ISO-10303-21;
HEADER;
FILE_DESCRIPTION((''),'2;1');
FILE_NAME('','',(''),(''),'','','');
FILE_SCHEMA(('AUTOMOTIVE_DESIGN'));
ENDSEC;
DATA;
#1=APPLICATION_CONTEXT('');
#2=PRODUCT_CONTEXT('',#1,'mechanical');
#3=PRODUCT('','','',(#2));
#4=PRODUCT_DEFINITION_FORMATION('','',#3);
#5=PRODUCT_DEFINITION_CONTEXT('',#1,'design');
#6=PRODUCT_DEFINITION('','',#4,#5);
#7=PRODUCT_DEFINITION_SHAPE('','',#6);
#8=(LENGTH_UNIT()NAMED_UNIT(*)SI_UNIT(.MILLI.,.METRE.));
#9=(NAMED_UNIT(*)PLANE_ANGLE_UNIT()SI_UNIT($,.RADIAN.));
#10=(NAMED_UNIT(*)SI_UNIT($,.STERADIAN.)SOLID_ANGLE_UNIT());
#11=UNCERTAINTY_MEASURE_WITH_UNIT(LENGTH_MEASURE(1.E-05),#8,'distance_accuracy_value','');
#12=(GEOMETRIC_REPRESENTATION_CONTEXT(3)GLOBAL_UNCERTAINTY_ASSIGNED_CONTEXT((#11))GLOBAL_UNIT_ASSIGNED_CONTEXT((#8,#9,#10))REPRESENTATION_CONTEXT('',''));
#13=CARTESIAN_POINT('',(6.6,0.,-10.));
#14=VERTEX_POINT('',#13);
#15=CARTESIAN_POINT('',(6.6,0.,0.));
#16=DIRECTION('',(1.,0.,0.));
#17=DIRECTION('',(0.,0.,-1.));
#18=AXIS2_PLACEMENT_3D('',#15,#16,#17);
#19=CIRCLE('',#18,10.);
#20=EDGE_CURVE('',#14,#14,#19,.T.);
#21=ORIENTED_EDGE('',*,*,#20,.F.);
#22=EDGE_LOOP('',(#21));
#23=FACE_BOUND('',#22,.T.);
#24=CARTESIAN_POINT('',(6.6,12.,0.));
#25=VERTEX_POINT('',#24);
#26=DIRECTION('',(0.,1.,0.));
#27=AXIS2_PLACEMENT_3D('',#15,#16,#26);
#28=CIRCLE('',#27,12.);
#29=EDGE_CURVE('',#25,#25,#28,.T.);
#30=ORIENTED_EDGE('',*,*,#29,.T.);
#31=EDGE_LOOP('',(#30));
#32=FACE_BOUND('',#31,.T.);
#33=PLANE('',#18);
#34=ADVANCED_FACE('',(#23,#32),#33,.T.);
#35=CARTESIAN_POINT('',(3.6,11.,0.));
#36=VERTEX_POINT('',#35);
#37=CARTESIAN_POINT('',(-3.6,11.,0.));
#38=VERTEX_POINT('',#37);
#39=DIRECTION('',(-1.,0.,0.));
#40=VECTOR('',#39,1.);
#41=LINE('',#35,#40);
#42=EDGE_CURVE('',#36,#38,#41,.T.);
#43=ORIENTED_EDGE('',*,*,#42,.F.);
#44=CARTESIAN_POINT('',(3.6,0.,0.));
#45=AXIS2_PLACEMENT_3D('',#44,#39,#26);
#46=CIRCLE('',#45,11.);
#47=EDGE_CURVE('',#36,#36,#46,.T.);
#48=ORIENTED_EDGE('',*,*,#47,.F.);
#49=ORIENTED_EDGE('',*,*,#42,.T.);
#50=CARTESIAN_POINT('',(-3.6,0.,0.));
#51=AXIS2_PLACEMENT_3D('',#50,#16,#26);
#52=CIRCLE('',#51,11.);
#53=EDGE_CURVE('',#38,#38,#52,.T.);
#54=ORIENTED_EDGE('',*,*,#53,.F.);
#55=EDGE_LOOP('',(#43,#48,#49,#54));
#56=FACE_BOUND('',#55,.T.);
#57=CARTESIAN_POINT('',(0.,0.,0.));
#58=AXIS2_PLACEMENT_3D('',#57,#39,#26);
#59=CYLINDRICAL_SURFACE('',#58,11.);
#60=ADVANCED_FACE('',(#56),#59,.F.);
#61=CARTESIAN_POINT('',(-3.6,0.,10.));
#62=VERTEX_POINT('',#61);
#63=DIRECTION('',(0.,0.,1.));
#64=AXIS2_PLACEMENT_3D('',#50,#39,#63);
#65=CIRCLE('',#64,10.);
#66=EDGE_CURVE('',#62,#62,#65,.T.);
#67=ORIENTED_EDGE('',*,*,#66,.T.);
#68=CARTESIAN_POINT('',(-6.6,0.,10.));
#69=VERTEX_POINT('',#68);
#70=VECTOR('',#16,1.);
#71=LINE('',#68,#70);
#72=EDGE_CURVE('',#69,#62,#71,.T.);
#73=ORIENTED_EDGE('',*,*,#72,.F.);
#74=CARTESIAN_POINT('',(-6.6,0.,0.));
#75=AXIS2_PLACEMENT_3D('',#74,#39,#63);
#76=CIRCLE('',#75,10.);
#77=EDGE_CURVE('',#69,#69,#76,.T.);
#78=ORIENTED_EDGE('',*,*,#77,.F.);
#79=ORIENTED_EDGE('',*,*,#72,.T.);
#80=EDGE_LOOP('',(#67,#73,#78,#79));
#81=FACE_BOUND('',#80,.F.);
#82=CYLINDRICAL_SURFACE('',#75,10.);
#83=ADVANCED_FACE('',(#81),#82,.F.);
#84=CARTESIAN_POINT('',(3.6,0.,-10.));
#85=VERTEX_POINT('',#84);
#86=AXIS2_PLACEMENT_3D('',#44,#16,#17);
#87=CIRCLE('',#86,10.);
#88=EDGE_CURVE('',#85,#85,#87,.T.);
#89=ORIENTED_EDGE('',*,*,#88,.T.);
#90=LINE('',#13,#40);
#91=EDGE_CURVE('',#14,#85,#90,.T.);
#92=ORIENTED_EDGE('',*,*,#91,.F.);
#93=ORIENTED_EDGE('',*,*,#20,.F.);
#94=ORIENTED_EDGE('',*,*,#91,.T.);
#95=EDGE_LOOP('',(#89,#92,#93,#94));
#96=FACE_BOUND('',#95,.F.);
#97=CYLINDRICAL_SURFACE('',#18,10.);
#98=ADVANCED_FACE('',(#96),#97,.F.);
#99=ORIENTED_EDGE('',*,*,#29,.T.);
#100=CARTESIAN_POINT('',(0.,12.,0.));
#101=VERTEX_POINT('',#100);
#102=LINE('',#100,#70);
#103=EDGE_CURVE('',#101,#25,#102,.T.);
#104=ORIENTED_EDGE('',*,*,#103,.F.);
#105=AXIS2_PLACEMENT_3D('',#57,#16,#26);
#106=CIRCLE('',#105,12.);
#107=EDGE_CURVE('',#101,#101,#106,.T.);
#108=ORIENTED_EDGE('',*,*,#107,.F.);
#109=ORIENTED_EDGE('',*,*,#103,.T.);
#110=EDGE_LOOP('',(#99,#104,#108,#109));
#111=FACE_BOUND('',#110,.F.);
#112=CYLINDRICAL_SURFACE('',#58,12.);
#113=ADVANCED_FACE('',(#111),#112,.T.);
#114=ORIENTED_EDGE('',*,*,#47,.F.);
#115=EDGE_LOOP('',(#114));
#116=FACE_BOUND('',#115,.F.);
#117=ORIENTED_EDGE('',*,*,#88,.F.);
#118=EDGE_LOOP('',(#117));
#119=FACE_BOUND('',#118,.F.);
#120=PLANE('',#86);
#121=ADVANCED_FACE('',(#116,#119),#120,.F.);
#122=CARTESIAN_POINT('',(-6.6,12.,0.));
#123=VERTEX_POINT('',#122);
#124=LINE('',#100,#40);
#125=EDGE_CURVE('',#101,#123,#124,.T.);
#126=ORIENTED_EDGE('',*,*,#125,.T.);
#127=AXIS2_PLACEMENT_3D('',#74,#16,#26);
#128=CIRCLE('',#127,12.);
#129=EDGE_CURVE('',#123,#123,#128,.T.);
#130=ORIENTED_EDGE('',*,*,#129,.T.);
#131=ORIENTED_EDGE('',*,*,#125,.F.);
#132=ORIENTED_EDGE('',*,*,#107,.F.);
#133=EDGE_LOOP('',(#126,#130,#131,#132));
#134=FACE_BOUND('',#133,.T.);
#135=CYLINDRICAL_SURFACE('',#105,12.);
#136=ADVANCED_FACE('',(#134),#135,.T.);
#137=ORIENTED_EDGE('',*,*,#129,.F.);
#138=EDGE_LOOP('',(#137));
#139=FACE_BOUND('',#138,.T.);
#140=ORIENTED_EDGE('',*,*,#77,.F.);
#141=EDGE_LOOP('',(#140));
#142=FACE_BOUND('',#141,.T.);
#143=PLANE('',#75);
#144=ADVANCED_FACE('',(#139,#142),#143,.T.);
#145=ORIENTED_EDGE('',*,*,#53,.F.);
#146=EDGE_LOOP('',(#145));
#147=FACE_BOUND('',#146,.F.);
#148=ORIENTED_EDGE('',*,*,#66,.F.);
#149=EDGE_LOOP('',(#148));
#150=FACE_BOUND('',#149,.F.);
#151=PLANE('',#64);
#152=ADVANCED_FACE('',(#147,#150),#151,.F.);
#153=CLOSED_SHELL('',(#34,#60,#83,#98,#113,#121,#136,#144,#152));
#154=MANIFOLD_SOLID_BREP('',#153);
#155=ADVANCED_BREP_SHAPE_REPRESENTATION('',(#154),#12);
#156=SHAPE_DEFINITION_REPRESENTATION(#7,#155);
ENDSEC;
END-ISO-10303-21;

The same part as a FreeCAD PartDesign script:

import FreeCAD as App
import Part
import Sketcher
from FreeCAD import Vector

doc = App.newDocument("Part")
body = doc.addObject("PartDesign::Body", "Body")

# Sketch on YZ plane
sketch1 = body.newObject("Sketcher::SketchObject", "Sketch")
sketch1.AttachmentSupport = (doc.getObject("YZ_Plane"), [""])
sketch1.MapMode = "FlatFace"
sketch1.addGeometry(Part.Circle(Vector(0, 0, 0), Vector(0, 0, 1), 12), False)
sketch1.addGeometry(Part.Circle(Vector(0, 0, 0), Vector(0, 0, 1), 11), False)
sketch1.addConstraint(Sketcher.Constraint("Coincident", 0, 3, -1, 1))
sketch1.addConstraint(Sketcher.Constraint("Coincident", 1, 3, -1, 1))
sketch1.addConstraint(Sketcher.Constraint("Diameter", 0, 24.0))
sketch1.addConstraint(Sketcher.Constraint("Diameter", 1, 22.0))
pad1 = body.newObject("PartDesign::Pad", "Pad")
pad1.Profile = sketch1
pad1.Length = 13.2
pad1.Midplane = True

# Sketch on YZ plane
sketch2 = body.newObject("Sketcher::SketchObject", "Sketch001")
sketch2.AttachmentSupport = (doc.getObject("YZ_Plane"), [""])
sketch2.MapMode = "FlatFace"
sketch2.AttachmentOffset = App.Placement(Vector(0, 0, -6.6), App.Rotation())
sketch2.addGeometry(Part.Circle(Vector(0, 0, 0), Vector(0, 0, 1), 11), False)
sketch2.addGeometry(Part.Circle(Vector(0, 0, 0), Vector(0, 0, 1), 10), False)
sketch2.addConstraint(Sketcher.Constraint("Coincident", 0, 3, -1, 1))
sketch2.addConstraint(Sketcher.Constraint("Coincident", 1, 3, -1, 1))
sketch2.addConstraint(Sketcher.Constraint("Diameter", 0, 22.0))
sketch2.addConstraint(Sketcher.Constraint("Diameter", 1, 20.0))
pad2 = body.newObject("PartDesign::Pad", "Pad001")
pad2.Profile = sketch2
pad2.Length = 3

# Sketch on YZ plane
sketch3 = body.newObject("Sketcher::SketchObject", "Sketch002")
sketch3.AttachmentSupport = (doc.getObject("YZ_Plane"), [""])
sketch3.MapMode = "FlatFace"
sketch3.AttachmentOffset = App.Placement(Vector(0, 0, 6.6), App.Rotation())
sketch3.addGeometry(Part.Circle(Vector(0, 0, 0), Vector(0, 0, 1), 11), False)
sketch3.addGeometry(Part.Circle(Vector(0, 0, 0), Vector(0, 0, 1), 10), False)
sketch3.addConstraint(Sketcher.Constraint("Coincident", 0, 3, -1, 1))
sketch3.addConstraint(Sketcher.Constraint("Coincident", 1, 3, -1, 1))
sketch3.addConstraint(Sketcher.Constraint("Diameter", 0, 22.0))
sketch3.addConstraint(Sketcher.Constraint("Diameter", 1, 20.0))
pad3 = body.newObject("PartDesign::Pad", "Pad002")
pad3.Profile = sketch3
pad3.Length = 3
pad3.Reversed = True

doc.recompute()
